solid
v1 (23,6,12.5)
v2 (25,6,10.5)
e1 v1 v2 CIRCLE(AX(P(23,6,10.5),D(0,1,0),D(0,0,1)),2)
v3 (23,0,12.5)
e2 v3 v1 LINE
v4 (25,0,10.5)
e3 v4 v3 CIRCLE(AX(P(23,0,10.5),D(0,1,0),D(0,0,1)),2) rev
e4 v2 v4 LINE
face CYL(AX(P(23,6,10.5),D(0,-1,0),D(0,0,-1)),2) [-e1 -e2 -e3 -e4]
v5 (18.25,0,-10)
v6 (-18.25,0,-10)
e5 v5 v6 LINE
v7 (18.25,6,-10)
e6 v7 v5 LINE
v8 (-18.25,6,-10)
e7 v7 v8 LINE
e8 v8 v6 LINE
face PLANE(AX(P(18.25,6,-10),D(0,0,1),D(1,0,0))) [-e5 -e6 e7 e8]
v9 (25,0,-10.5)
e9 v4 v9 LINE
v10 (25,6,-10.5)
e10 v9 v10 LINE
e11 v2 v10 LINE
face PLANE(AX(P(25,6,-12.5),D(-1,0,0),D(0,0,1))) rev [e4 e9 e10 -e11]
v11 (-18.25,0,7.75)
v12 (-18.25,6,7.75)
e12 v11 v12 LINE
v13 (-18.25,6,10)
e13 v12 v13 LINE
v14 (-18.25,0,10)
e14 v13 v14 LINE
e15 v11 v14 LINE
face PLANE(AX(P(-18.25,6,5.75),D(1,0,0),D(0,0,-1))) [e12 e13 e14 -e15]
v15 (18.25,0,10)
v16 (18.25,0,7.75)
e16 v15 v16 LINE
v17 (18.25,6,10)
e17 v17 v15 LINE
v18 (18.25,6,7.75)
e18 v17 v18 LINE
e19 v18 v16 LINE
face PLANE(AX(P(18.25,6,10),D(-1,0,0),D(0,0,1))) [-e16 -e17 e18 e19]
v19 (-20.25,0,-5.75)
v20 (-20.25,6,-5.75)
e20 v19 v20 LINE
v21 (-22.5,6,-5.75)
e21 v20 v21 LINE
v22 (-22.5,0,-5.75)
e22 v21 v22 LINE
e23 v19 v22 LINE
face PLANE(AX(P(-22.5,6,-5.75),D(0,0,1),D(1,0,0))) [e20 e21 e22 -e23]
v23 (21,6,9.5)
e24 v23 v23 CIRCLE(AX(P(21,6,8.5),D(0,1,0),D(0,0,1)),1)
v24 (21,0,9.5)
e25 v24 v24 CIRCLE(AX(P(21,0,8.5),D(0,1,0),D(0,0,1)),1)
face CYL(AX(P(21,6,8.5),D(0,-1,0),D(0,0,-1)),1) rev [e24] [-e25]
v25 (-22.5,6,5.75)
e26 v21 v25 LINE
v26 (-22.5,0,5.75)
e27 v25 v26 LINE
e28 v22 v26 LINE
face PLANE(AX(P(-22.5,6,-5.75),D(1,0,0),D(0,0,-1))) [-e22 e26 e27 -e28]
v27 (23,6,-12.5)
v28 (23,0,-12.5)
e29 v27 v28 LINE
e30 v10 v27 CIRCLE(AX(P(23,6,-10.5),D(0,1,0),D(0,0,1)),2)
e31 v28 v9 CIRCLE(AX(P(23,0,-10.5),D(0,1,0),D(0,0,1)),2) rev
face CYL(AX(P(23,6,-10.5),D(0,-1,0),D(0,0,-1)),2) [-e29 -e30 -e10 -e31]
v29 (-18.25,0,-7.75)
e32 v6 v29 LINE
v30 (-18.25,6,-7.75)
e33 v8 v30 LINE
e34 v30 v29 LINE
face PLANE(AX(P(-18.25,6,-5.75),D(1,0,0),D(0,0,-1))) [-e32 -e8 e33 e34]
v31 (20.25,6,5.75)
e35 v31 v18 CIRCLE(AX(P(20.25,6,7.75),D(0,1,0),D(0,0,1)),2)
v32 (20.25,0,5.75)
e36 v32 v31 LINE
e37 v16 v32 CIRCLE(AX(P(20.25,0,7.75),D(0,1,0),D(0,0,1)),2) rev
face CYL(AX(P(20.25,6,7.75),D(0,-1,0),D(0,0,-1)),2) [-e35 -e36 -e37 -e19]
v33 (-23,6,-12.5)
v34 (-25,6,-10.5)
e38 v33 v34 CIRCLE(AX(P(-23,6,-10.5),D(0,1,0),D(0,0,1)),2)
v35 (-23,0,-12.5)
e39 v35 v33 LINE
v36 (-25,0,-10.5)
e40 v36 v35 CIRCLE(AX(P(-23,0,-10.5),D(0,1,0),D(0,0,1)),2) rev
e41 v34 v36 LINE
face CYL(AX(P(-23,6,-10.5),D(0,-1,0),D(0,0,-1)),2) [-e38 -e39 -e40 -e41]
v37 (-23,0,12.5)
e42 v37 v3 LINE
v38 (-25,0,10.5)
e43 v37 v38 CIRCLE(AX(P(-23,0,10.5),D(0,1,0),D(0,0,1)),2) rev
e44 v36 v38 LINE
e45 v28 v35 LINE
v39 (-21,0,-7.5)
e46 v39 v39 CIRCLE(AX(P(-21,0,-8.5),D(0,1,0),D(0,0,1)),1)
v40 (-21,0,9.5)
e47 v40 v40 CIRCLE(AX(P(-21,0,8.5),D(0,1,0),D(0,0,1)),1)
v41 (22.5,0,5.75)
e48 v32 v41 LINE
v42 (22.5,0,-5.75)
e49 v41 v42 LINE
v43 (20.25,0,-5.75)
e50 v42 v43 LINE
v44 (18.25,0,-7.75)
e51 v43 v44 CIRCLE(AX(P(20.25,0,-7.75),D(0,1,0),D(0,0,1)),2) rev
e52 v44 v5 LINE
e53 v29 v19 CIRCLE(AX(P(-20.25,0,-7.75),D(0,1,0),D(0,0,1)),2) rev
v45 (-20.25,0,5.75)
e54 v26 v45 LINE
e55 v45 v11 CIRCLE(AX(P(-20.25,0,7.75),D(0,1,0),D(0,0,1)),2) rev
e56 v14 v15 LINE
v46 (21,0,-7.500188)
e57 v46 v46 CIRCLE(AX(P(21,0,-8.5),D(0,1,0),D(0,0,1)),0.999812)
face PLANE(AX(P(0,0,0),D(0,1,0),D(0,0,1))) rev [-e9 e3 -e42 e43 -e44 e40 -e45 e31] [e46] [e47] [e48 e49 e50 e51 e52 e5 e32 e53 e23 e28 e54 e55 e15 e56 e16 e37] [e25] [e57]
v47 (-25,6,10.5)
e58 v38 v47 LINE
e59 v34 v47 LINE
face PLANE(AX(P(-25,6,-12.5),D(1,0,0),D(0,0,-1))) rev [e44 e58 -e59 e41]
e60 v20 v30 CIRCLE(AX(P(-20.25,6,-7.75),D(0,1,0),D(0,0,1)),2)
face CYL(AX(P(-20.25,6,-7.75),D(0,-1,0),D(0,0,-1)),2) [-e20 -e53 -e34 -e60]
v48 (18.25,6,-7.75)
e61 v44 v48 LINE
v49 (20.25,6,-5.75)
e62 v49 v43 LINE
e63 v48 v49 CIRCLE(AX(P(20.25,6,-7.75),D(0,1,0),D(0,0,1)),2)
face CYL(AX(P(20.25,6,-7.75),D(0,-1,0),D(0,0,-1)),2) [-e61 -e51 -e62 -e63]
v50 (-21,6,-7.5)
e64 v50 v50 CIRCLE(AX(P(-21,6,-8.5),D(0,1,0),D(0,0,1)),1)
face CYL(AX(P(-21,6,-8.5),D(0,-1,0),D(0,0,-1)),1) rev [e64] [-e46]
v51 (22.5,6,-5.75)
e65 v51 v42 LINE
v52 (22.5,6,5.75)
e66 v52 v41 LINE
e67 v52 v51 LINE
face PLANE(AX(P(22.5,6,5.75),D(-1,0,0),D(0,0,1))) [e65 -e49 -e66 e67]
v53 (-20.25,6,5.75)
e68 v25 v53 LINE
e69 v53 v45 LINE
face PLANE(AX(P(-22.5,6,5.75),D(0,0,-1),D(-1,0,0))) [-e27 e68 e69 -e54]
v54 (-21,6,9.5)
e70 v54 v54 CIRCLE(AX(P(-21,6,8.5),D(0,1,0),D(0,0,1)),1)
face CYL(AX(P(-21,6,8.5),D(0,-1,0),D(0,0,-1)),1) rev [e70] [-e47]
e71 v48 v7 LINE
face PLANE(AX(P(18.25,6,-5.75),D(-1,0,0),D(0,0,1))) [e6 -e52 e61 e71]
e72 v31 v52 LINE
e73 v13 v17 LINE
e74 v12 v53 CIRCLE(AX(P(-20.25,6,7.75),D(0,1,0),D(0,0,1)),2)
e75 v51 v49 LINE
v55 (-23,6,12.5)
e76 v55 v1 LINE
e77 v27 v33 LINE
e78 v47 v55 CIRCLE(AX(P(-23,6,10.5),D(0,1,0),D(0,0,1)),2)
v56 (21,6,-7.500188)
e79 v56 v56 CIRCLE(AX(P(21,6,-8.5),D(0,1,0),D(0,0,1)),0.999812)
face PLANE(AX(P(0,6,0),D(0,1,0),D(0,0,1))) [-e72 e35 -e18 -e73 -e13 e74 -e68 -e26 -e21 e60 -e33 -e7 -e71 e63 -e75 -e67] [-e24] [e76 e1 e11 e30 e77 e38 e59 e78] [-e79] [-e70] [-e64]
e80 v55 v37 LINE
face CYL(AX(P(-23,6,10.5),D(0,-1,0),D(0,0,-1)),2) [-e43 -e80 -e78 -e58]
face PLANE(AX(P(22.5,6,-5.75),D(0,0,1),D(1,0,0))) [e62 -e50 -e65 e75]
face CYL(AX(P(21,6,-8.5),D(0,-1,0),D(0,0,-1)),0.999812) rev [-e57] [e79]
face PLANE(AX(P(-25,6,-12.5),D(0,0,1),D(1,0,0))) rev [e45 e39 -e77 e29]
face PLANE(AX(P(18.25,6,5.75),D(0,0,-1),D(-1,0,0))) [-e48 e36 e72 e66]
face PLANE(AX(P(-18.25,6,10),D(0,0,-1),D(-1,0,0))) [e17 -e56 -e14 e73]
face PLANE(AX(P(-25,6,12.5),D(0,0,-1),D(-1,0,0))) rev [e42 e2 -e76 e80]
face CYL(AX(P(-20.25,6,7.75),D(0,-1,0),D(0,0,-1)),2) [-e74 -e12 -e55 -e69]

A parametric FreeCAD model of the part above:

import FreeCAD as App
import Part
import Sketcher
from FreeCAD import Vector
Q = App.Units.Quantity


def edges_at(feature, points):
    """Names of the edges that pass closest to the given points."""
    edges = feature.Shape.Edges
    near = lambda p: min(range(len(edges)), key=lambda i: edges[i].distToShape(Part.Vertex(*p))[0])
    return sorted({f"Edge{near(p) + 1}" for p in points})

doc = App.newDocument("Part")
body = doc.addObject("PartDesign::Body", "Body")

sketch1 = body.newObject("Sketcher::SketchObject", "Sketch")
sketch1.AttachmentSupport = (doc.getObject("XZ_Plane"), [""])
sketch1.MapMode = "FlatFace"
sketch1.addGeometry(Part.LineSegment(Vector(-25, -12.5, 0), Vector(-25, 12.5, 0)), False)
sketch1.addGeometry(Part.LineSegment(Vector(-25, 12.5, 0), Vector(25, 12.5, 0)), False)
sketch1.addGeometry(Part.LineSegment(Vector(25, 12.5, 0), Vector(25, -12.5, 0)), False)
sketch1.addGeometry(Part.LineSegment(Vector(25, -12.5, 0), Vector(-25, -12.5, 0)), False)
sketch1.addConstraint(Sketcher.Constraint("Coincident", 0, 2, 1, 1))
sketch1.addConstraint(Sketcher.Constraint("Coincident", 1, 2, 2, 1))
sketch1.addConstraint(Sketcher.Constraint("Coincident", 2, 2, 3, 1))
sketch1.addConstraint(Sketcher.Constraint("Coincident", 3, 2, 0, 1))
sketch1.addConstraint(Sketcher.Constraint("Vertical", 0))
sketch1.addConstraint(Sketcher.Constraint("Horizontal", 1))
sketch1.addConstraint(Sketcher.Constraint("Vertical", 2))
sketch1.addConstraint(Sketcher.Constraint("Horizontal", 3))
sketch1.addConstraint(Sketcher.Constraint("Symmetric", 0, 2, 2, 2, -1, 1))
sketch1.addConstraint(Sketcher.Constraint("DistanceX", 1, 1, 1, 2, Q("50 mm")))
sketch1.addConstraint(Sketcher.Constraint("DistanceY", 0, 1, 0, 2, Q("25 mm")))
pad1 = body.newObject("PartDesign::Pad", "Pad")
pad1.Profile = sketch1
pad1.Length = 6
pad1.Reversed = True

sketch2 = body.newObject("Sketcher::SketchObject", "Sketch001")
sketch2.AttachmentSupport = (doc.getObject("XZ_Plane"), [""])
sketch2.MapMode = "FlatFace"
sketch2.addGeometry(Part.Circle(Vector(-21, -8.5, 0), Vector(0, 0, 1), 1), False)
sketch2.addGeometry(Part.Circle(Vector(21, -8.5, 0), Vector(0, 0, 1), 0.999812), False)
sketch2.addGeometry(Part.Circle(Vector(-21, 8.5, 0), Vector(0, 0, 1), 1), False)
sketch2.addGeometry(Part.Circle(Vector(21, 8.5, 0), Vector(0, 0, 1), 1), False)
sketch2.addConstraint(Sketcher.Constraint("Equal", 0, 2))
sketch2.addConstraint(Sketcher.Constraint("Equal", 2, 3))
sketch2.addConstraint(Sketcher.Constraint("Symmetric", 1, 3, 2, 3, -1, 1))
sketch2.addConstraint(Sketcher.Constraint("Symmetric", 0, 3, 3, 3, -1, 1))
sketch2.addConstraint(Sketcher.Constraint("Symmetric", 0, 3, 1, 3, -2))
sketch2.addConstraint(Sketcher.Constraint("Diameter", 0, Q("2 mm")))
sketch2.addConstraint(Sketcher.Constraint("DistanceX", 0, 3, -1, 1, Q("21 mm")))
sketch2.addConstraint(Sketcher.Constraint("DistanceY", 0, 3, 2, 3, Q("17 mm")))
sketch2.addConstraint(Sketcher.Constraint("Diameter", 1, Q("1.999624 mm")))
pocket1 = body.newObject("PartDesign::Pocket", "Pocket")
pocket1.Profile = sketch2
pocket1.Length = 6

sketch3 = body.newObject("Sketcher::SketchObject", "Sketch002")
sketch3.AttachmentSupport = (doc.getObject("XZ_Plane"), [""])
sketch3.MapMode = "FlatFace"
sketch3.addGeometry(Part.LineSegment(Vector(-22.5, -5.75, 0), Vector(-22.5, 5.75, 0)), False)
sketch3.addGeometry(Part.LineSegment(Vector(-22.5, 5.75, 0), Vector(-18.25, 5.75, 0)), False)
sketch3.addGeometry(Part.LineSegment(Vector(-18.25, 5.75, 0), Vector(-18.25, 10, 0)), False)
sketch3.addGeometry(Part.LineSegment(Vector(-18.25, 10, 0), Vector(18.25, 10, 0)), False)
sketch3.addGeometry(Part.LineSegment(Vector(18.25, 10, 0), Vector(18.25, 5.75, 0)), False)
sketch3.addGeometry(Part.LineSegment(Vector(18.25, 5.75, 0), Vector(22.5, 5.75, 0)), False)
sketch3.addGeometry(Part.LineSegment(Vector(22.5, 5.75, 0), Vector(22.5, -5.75, 0)), False)
sketch3.addGeometry(Part.LineSegment(Vector(22.5, -5.75, 0), Vector(18.25, -5.75, 0)), False)
sketch3.addGeometry(Part.LineSegment(Vector(18.25, -5.75, 0), Vector(18.25, -10, 0)), False)
sketch3.addGeometry(Part.LineSegment(Vector(18.25, -10, 0), Vector(-18.25, -10, 0)), False)
sketch3.addGeometry(Part.LineSegment(Vector(-18.25, -10, 0), Vector(-18.25, -5.75, 0)), False)
sketch3.addGeometry(Part.LineSegment(Vector(-18.25, -5.75, 0), Vector(-22.5, -5.75, 0)), False)
sketch3.addConstraint(Sketcher.Constraint("Coincident", 0, 2, 1, 1))
sketch3.addConstraint(Sketcher.Constraint("Coincident", 1, 2, 2, 1))
sketch3.addConstraint(Sketcher.Constraint("Coincident", 2, 2, 3, 1))
sketch3.addConstraint(Sketcher.Constraint("Coincident", 3, 2, 4, 1))
sketch3.addConstraint(Sketcher.Constraint("Coincident", 4, 2, 5, 1))
sketch3.addConstraint(Sketcher.Constraint("Coincident", 5, 2, 6, 1))
sketch3.addConstraint(Sketcher.Constraint("Coincident", 6, 2, 7, 1))
sketch3.addConstraint(Sketcher.Constraint("Coincident", 7, 2, 8, 1))
sketch3.addConstraint(Sketcher.Constraint("Coincident", 8, 2, 9, 1))
sketch3.addConstraint(Sketcher.Constraint("Coincident", 9, 2, 10, 1))
sketch3.addConstraint(Sketcher.Constraint("Coincident", 10, 2, 11, 1))
sketch3.addConstraint(Sketcher.Constraint("Coincident", 11, 2, 0, 1))
sketch3.addConstraint(Sketcher.Constraint("Vertical", 0))
sketch3.addConstraint(Sketcher.Constraint("Horizontal", 1))
sketch3.addConstraint(Sketcher.Constraint("Vertical", 2))
sketch3.addConstraint(Sketcher.Constraint("Horizontal", 3))
sketch3.addConstraint(Sketcher.Constraint("Vertical", 4))
sketch3.addConstraint(Sketcher.Constraint("Horizontal", 5))
sketch3.addConstraint(Sketcher.Constraint("Vertical", 6))
sketch3.addConstraint(Sketcher.Constraint("Horizontal", 7))
sketch3.addConstraint(Sketcher.Constraint("Vertical", 8))
sketch3.addConstraint(Sketcher.Constraint("Horizontal", 9))
sketch3.addConstraint(Sketcher.Constraint("Vertical", 10))
sketch3.addConstraint(Sketcher.Constraint("Horizontal", 11))
sketch3.addConstraint(Sketcher.Constraint("Symmetric", 0, 2, 6, 2, -1, 1))
sketch3.addConstraint(Sketcher.Constraint("Symmetric", 2, 2, 8, 2, -1, 1))
sketch3.addConstraint(Sketcher.Constraint("Symmetric", 4, 2, 10, 2, -1, 1))
sketch3.addConstraint(Sketcher.Constraint("Symmetric", 1, 2, 4, 2, -2))
sketch3.addConstraint(Sketcher.Constraint("Equal", 11, 2))
sketch3.addConstraint(Sketcher.Constraint("DistanceX", 3, 1, 3, 2, Q("36.5 mm")))
sketch3.addConstraint(Sketcher.Constraint("DistanceY", 0, 1, 0, 2, Q("11.5 mm")))
sketch3.addConstraint(Sketcher.Constraint("DistanceY", -1, 1, 2, 2, Q("10 mm")))
pocket2 = body.newObject("PartDesign::Pocket", "Pocket001")
pocket2.Profile = sketch3
pocket2.Length = 6
doc.recompute()

fillet = body.newObject("PartDesign::Fillet", "Fillet")
fillet.Base = (pocket2, edges_at(pocket2, [
    (-18.25, 3, -5.75),
    (-18.25, 3, 5.75),
    (18.25, 3, 5.75),
    (18.25, 3, -5.75),
    (25, 3, 12.5),
    (-25, 3, 12.5),
    (-25, 3, -12.5),
    (25, 3, -12.5),
]))
fillet.Radius = 2

doc.recompute()
